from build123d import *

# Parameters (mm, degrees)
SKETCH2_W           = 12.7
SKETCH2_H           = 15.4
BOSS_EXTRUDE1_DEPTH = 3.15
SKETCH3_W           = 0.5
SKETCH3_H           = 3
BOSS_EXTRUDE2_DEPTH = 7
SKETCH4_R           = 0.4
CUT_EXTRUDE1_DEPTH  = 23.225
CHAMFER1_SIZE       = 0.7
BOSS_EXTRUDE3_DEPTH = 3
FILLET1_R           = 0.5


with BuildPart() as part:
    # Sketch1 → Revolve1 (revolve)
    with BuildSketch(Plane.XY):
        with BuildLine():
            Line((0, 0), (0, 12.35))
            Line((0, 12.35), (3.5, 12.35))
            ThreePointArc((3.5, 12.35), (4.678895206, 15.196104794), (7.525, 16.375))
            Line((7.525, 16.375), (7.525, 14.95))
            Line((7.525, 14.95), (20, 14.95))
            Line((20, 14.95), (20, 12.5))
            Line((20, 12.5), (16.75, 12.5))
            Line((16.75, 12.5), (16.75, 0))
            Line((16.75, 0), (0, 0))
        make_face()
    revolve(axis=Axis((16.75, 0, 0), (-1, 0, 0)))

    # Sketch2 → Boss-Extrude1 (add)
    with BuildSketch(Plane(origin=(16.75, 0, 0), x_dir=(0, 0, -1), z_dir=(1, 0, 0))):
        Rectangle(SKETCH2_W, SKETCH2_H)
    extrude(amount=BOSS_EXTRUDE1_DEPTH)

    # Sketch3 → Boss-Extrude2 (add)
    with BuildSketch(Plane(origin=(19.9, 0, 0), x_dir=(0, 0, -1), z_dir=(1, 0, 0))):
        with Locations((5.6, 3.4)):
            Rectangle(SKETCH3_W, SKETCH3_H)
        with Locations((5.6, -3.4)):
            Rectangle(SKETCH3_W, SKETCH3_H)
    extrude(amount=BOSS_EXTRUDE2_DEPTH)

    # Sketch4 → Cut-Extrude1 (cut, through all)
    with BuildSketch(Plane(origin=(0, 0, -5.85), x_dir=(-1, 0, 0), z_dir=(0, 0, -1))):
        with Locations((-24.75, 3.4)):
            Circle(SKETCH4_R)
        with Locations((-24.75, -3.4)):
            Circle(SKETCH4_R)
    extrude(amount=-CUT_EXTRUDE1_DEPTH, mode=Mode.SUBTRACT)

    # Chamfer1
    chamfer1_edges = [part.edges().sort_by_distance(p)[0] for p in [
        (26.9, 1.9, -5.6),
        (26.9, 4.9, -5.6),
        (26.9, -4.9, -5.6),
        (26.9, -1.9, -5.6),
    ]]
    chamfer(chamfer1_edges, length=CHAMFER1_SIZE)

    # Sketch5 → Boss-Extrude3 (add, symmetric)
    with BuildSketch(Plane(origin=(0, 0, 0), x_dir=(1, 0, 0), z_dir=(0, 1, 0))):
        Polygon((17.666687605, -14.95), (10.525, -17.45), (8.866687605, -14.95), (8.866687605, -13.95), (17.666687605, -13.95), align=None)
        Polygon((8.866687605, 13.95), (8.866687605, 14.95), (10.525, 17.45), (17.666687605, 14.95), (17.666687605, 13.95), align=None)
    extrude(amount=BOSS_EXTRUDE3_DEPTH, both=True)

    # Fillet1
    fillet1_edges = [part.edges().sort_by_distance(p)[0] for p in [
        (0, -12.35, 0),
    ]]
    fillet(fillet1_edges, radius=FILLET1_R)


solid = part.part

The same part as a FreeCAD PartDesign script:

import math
import FreeCAD as App
import Part
import Sketcher

V = App.Vector


def edges_at(feature, points):
    """Names of the edges that pass closest to the given points."""
    edges = feature.Shape.Edges
    near = lambda p: min(range(len(edges)), key=lambda i: edges[i].distToShape(Part.Vertex(*p))[0])
    return sorted({f"Edge{near(p) + 1}" for p in points})


def add_polygon(sketch, points):
    """Adds a closed chain of lines whose ends are joined by coincident constraints."""
    first, n = sketch.GeometryCount, len(points)
    for a, b in zip(points, points[1:] + points[:1]):
        sketch.addGeometry(Part.LineSegment(App.Vector(*a, 0), App.Vector(*b, 0)), False)
    for i in range(n):
        sketch.addConstraint(Sketcher.Constraint("Coincident", first + i, 2, first + (i + 1) % n, 1))

doc = App.newDocument("Part")
params = doc.addObject("Spreadsheet::Sheet", "Params")
for row, (alias, value) in enumerate([
    ("sketch1_width", "3.5 mm"),
    ("sketch1_height", "12.5 mm"),
    ("sketch1_width2", "16.75 mm"),
    ("sketch1_height2", "12.35 mm"),
    ("sketch1_height3", "2.45 mm"),
    ("revolution_angle", "360 deg"),
    ("sketch2_width", "15.4 mm"),
    ("sketch2_height", "12.7 mm"),
    ("pad1_length", "3.15 mm"),
    ("sketch3_width", "3 mm"),
    ("sketch3_height", "0.5 mm"),
    ("pad2_length", "7 mm"),
    ("sketch4_diameter", "0.8 mm"),
    ("chamfer_size", "0.7 mm"),
    ("sketch5_height", "1 mm"),
    ("sketch5_length", "3 mm"),
    ("sketch5_width", "8.8 mm"),
    ("pad3_length", "6 mm"),
    ("fillet_radius", "0.5 mm"),
], start=1):
    params.set(f"A{row}", alias)
    params.set(f"B{row}", "=" + value)
    params.setAlias(f"B{row}", alias)

body = doc.addObject("PartDesign::Body", "Body")

# Sketch on XY plane
sketch1 = body.newObject("Sketcher::SketchObject", "Sketch")
sketch1.AttachmentSupport = (doc.getObject("XY_Plane"), [""])
sketch1.MapMode = "FlatFace"
sketch1.addGeometry([
    Part.LineSegment(V(0, 12.35, 0), V(0, 0, 0)),  # 0
    Part.LineSegment(V(0, 0, 0), V(16.75, 0, 0)),  # 1
    Part.LineSegment(V(16.75, 0, 0), V(16.75, 12.5, 0)),  # 2
    Part.LineSegment(V(16.75, 12.5, 0), V(20, 12.5, 0)),  # 3
    Part.LineSegment(V(20, 12.5, 0), V(20, 14.95, 0)),  # 4
    Part.LineSegment(V(20, 14.95, 0), V(7.525, 14.95, 0)),  # 5
    Part.LineSegment(V(7.525, 14.95, 0), V(7.525, 16.375, 0)),  # 6
    Part.ArcOfCircle(Part.Circle(V(7.525, 12.35, 0), V(0, 0, 1), 4.025), math.radians(90), math.radians(180)),  # 7
    Part.LineSegment(V(3.5, 12.35, 0), V(0, 12.35, 0)),  # 8
], False)
sketch1.addConstraint([
    Sketcher.Constraint("Coincident", 0, 2, 1, 1),
    Sketcher.Constraint("Coincident", 1, 2, 2, 1),
    Sketcher.Constraint("Coincident", 2, 2, 3, 1),
    Sketcher.Constraint("Coincident", 3, 2, 4, 1),
    Sketcher.Constraint("Coincident", 4, 2, 5, 1),
    Sketcher.Constraint("Coincident", 5, 2, 6, 1),
    Sketcher.Constraint("Coincident", 6, 2, 7, 1),
    Sketcher.Constraint("Coincident", 7, 2, 8, 1),
    Sketcher.Constraint("Coincident", 8, 2, 0, 1),
    Sketcher.Constraint("Vertical", 0),
    Sketcher.Constraint("Horizontal", 1),
    Sketcher.Constraint("Vertical", 2),
    Sketcher.Constraint("Horizontal", 3),
    Sketcher.Constraint("Vertical", 4),
    Sketcher.Constraint("Horizontal", 5),
    Sketcher.Constraint("Vertical", 6),
    Sketcher.Constraint("Horizontal", 8),
    Sketcher.Constraint("Coincident", 0, 2, -1, 1),
    Sketcher.Constraint("Vertical", 7, 3, 5, 2),
    Sketcher.Constraint("DistanceX", 8, 2, 8, 1, 3.5),
    Sketcher.Constraint("DistanceY", 2, 1, 2, 2, 12.5),
    Sketcher.Constraint("DistanceX", -1, 1, 3, 2, 20.0),
    Sketcher.Constraint("Radius", 7, 4.025),
    Sketcher.Constraint("DistanceX", 1, 1, 1, 2, 16.75),
    Sketcher.Constraint("DistanceY", 0, 2, 0, 1, 12.35),
    Sketcher.Constraint("DistanceY", 4, 1, 4, 2, 2.45),
    Sketcher.Constraint("DistanceY", 7, 3, 4, 2, 2.6),
])
sketch1.setExpression("Constraints[19]", "Params.sketch1_width")
sketch1.setExpression("Constraints[20]", "Params.sketch1_height")
sketch1.setExpression("Constraints[23]", "Params.sketch1_width2")
sketch1.setExpression("Constraints[24]", "Params.sketch1_height2")
sketch1.setExpression("Constraints[25]", "Params.sketch1_height3")
revolution = body.newObject("PartDesign::Revolution", "Revolution")
revolution.Profile = sketch1
revolution.ReferenceAxis = (sketch1, ["H_Axis"])
revolution.setExpression("Angle", "Params.revolution_angle")

# Sketch on YZ plane
sketch2 = body.newObject("Sketcher::SketchObject", "Sketch001")
sketch2.AttachmentSupport = (doc.getObject("YZ_Plane"), [""])
sketch2.MapMode = "FlatFace"
sketch2.AttachmentOffset = App.Placement(V(0, 0, 16.75), App.Rotation())
add_polygon(sketch2, [(7.7, 6.35), (-7.7, 6.35), (-7.7, -6.35), (7.7, -6.35)])  # lines 0-3
sketch2.addConstraint([
    Sketcher.Constraint("Horizontal", 0),
    Sketcher.Constraint("Vertical", 1),
    Sketcher.Constraint("Horizontal", 2),
    Sketcher.Constraint("Vertical", 3),
    Sketcher.Constraint("Symmetric", 0, 2, 2, 2, -1, 1),
    Sketcher.Constraint("DistanceX", 0, 2, 0, 1, 15.4),
    Sketcher.Constraint("DistanceY", 1, 2, 1, 1, 12.7),
])
sketch2.setExpression("Constraints[9]", "Params.sketch2_width")
sketch2.setExpression("Constraints[10]", "Params.sketch2_height")
pad1 = body.newObject("PartDesign::Pad", "Pad")
pad1.Profile = sketch2
pad1.setExpression("Length", "Params.pad1_length")

# Sketch on YZ plane
sketch3 = body.newObject("Sketcher::SketchObject", "Sketch002")
sketch3.AttachmentSupport = (doc.getObject("YZ_Plane"), [""])
sketch3.MapMode = "FlatFace"
sketch3.AttachmentOffset = App.Placement(V(0, 0, 19.9), App.Rotation())
add_polygon(sketch3, [(4.9, -5.35), (1.9, -5.35), (1.9, -5.85), (4.9, -5.85)])  # lines 0-3
add_polygon(sketch3, [(-1.9, -5.35), (-4.9, -5.35), (-4.9, -5.85), (-1.9, -5.85)])  # lines 4-7
sketch3.addConstraint([
    Sketcher.Constraint("Horizontal", 0),
    Sketcher.Constraint("Vertical", 1),
    Sketcher.Constraint("Horizontal", 2),
    Sketcher.Constraint("Vertical", 3),
    Sketcher.Constraint("Horizontal", 4),
    Sketcher.Constraint("Vertical", 5),
    Sketcher.Constraint("Horizontal", 6),
    Sketcher.Constraint("Vertical", 7),
    Sketcher.Constraint("Symmetric", 3, 2, 4, 2, -2),
    Sketcher.Constraint("Symmetric", 1, 2, 6, 2, -2),
    Sketcher.Constraint("DistanceX", 0, 2, 0, 1, 3.0),
    Sketcher.Constraint("DistanceY", 1, 2, 1, 1, 0.5),
    Sketcher.Constraint("DistanceX", -1, 1, 0, 2, 1.9),
    Sketcher.Constraint("DistanceY", 0, 2, -1, 1, 5.35),
])
sketch3.setExpression("Constraints[18]", "Params.sketch3_width")
sketch3.setExpression("Constraints[19]", "Params.sketch3_height")
pad2 = body.newObject("PartDesign::Pad", "Pad001")
pad2.Profile = sketch3
pad2.setExpression("Length", "Params.pad2_length")

# Sketch on XY plane
sketch4 = body.newObject("Sketcher::SketchObject", "Sketch003")
sketch4.AttachmentSupport = (doc.getObject("XY_Plane"), [""])
sketch4.MapMode = "FlatFace"
sketch4.AttachmentOffset = App.Placement(V(0, 0, -5.85), App.Rotation())
sketch4.addGeometry([
    Part.Circle(V(24.75, 3.4, 0), V(0, 0, 1), 0.4),
    Part.Circle(V(24.75, -3.4, 0), V(0, 0, 1), 0.4),
], False)
sketch4.addConstraint([
    Sketcher.Constraint("Equal", 0, 1),
    Sketcher.Constraint("Symmetric", 0, 3, 1, 3, -1),
    Sketcher.Constraint("Diameter", 0, 0.8),
    Sketcher.Constraint("DistanceY", -1, 1, 0, 3, 3.4),
    Sketcher.Constraint("DistanceX", -1, 1, 0, 3, 24.75),
])
sketch4.setExpression("Constraints[2]", "Params.sketch4_diameter")
pocket1 = body.newObject("PartDesign::Pocket", "Pocket")
pocket1.Profile = sketch4
pocket1.Type = "ThroughAll"
pocket1.Reversed = True
doc.recompute()

chamfer = body.newObject("PartDesign::Chamfer", "Chamfer")
chamfer.Base = (pocket1, edges_at(pocket1, [
    (26.9, 1.9, -5.6),
    (26.9, 4.9, -5.6),
    (26.9, -4.9, -5.6),
    (26.9, -1.9, -5.6),
]))
chamfer.setExpression("Size", "Params.chamfer_size")

# Sketch on XZ plane
sketch5 = body.newObject("Sketcher::SketchObject", "Sketch004")
sketch5.AttachmentSupport = (doc.getObject("XZ_Plane"), [""])
sketch5.MapMode = "FlatFace"
add_polygon(sketch5, [(10.525, 17.45), (17.666688, 14.95), (17.666688, 13.95), (8.866688, 13.95), (8.866688, 14.95)])  # lines 0-4
add_polygon(sketch5, [(8.866688, -14.95), (8.866688, -13.95), (17.666688, -13.95), (17.666688, -14.95), (10.525, -17.45)])  # lines 5-9
sketch5.addConstraint([
    Sketcher.Constraint("Vertical", 1),
    Sketcher.Constraint("Horizontal", 2),
    Sketcher.Constraint("Vertical", 3),
    Sketcher.Constraint("Vertical", 5),
    Sketcher.Constraint("Horizontal", 6),
    Sketcher.Constraint("Vertical", 7),
    Sketcher.Constraint("Symmetric", 2, 2, 5, 2, -1),
    Sketcher.Constraint("Symmetric", 0, 2, 7, 2, -1),
    Sketcher.Constraint("Symmetric", 4, 2, 8, 2, -1),
    Sketcher.Constraint("Horizontal", 0, 2, 3, 2),
    Sketcher.Constraint("Horizontal", 7, 2, 9, 2),
    Sketcher.Constraint("DistanceY", 1, 2, 1, 1, 1.0),
    Sketcher.Constraint("Distance", 4, 3.0),
    Sketcher.Constraint("DistanceX", 2, 2, 2, 1, 8.8),
    Sketcher.Constraint("DistanceY", 3, 2, 4, 2, 2.5),
    Sketcher.Constraint("DistanceY", 5, 2, 2, 2, 27.9),
    Sketcher.Constraint("DistanceX", -1, 1, 4, 2, 10.525),
])
sketch5.setExpression("Constraints[21]", "Params.sketch5_height")
sketch5.setExpression("Constraints[22]", "Params.sketch5_length")
sketch5.setExpression("Constraints[23]", "Params.sketch5_width")
pad3 = body.newObject("PartDesign::Pad", "Pad002")
pad3.Profile = sketch5
pad3.setExpression("Length", "Params.pad3_length")
pad3.Midplane = True
doc.recompute()

fillet = body.newObject("PartDesign::Fillet", "Fillet")
fillet.Base = (pad3, edges_at(pad3, [(0, -12.35, 0)]))
fillet.setExpression("Radius", "Params.fillet_radius")

doc.recompute()
